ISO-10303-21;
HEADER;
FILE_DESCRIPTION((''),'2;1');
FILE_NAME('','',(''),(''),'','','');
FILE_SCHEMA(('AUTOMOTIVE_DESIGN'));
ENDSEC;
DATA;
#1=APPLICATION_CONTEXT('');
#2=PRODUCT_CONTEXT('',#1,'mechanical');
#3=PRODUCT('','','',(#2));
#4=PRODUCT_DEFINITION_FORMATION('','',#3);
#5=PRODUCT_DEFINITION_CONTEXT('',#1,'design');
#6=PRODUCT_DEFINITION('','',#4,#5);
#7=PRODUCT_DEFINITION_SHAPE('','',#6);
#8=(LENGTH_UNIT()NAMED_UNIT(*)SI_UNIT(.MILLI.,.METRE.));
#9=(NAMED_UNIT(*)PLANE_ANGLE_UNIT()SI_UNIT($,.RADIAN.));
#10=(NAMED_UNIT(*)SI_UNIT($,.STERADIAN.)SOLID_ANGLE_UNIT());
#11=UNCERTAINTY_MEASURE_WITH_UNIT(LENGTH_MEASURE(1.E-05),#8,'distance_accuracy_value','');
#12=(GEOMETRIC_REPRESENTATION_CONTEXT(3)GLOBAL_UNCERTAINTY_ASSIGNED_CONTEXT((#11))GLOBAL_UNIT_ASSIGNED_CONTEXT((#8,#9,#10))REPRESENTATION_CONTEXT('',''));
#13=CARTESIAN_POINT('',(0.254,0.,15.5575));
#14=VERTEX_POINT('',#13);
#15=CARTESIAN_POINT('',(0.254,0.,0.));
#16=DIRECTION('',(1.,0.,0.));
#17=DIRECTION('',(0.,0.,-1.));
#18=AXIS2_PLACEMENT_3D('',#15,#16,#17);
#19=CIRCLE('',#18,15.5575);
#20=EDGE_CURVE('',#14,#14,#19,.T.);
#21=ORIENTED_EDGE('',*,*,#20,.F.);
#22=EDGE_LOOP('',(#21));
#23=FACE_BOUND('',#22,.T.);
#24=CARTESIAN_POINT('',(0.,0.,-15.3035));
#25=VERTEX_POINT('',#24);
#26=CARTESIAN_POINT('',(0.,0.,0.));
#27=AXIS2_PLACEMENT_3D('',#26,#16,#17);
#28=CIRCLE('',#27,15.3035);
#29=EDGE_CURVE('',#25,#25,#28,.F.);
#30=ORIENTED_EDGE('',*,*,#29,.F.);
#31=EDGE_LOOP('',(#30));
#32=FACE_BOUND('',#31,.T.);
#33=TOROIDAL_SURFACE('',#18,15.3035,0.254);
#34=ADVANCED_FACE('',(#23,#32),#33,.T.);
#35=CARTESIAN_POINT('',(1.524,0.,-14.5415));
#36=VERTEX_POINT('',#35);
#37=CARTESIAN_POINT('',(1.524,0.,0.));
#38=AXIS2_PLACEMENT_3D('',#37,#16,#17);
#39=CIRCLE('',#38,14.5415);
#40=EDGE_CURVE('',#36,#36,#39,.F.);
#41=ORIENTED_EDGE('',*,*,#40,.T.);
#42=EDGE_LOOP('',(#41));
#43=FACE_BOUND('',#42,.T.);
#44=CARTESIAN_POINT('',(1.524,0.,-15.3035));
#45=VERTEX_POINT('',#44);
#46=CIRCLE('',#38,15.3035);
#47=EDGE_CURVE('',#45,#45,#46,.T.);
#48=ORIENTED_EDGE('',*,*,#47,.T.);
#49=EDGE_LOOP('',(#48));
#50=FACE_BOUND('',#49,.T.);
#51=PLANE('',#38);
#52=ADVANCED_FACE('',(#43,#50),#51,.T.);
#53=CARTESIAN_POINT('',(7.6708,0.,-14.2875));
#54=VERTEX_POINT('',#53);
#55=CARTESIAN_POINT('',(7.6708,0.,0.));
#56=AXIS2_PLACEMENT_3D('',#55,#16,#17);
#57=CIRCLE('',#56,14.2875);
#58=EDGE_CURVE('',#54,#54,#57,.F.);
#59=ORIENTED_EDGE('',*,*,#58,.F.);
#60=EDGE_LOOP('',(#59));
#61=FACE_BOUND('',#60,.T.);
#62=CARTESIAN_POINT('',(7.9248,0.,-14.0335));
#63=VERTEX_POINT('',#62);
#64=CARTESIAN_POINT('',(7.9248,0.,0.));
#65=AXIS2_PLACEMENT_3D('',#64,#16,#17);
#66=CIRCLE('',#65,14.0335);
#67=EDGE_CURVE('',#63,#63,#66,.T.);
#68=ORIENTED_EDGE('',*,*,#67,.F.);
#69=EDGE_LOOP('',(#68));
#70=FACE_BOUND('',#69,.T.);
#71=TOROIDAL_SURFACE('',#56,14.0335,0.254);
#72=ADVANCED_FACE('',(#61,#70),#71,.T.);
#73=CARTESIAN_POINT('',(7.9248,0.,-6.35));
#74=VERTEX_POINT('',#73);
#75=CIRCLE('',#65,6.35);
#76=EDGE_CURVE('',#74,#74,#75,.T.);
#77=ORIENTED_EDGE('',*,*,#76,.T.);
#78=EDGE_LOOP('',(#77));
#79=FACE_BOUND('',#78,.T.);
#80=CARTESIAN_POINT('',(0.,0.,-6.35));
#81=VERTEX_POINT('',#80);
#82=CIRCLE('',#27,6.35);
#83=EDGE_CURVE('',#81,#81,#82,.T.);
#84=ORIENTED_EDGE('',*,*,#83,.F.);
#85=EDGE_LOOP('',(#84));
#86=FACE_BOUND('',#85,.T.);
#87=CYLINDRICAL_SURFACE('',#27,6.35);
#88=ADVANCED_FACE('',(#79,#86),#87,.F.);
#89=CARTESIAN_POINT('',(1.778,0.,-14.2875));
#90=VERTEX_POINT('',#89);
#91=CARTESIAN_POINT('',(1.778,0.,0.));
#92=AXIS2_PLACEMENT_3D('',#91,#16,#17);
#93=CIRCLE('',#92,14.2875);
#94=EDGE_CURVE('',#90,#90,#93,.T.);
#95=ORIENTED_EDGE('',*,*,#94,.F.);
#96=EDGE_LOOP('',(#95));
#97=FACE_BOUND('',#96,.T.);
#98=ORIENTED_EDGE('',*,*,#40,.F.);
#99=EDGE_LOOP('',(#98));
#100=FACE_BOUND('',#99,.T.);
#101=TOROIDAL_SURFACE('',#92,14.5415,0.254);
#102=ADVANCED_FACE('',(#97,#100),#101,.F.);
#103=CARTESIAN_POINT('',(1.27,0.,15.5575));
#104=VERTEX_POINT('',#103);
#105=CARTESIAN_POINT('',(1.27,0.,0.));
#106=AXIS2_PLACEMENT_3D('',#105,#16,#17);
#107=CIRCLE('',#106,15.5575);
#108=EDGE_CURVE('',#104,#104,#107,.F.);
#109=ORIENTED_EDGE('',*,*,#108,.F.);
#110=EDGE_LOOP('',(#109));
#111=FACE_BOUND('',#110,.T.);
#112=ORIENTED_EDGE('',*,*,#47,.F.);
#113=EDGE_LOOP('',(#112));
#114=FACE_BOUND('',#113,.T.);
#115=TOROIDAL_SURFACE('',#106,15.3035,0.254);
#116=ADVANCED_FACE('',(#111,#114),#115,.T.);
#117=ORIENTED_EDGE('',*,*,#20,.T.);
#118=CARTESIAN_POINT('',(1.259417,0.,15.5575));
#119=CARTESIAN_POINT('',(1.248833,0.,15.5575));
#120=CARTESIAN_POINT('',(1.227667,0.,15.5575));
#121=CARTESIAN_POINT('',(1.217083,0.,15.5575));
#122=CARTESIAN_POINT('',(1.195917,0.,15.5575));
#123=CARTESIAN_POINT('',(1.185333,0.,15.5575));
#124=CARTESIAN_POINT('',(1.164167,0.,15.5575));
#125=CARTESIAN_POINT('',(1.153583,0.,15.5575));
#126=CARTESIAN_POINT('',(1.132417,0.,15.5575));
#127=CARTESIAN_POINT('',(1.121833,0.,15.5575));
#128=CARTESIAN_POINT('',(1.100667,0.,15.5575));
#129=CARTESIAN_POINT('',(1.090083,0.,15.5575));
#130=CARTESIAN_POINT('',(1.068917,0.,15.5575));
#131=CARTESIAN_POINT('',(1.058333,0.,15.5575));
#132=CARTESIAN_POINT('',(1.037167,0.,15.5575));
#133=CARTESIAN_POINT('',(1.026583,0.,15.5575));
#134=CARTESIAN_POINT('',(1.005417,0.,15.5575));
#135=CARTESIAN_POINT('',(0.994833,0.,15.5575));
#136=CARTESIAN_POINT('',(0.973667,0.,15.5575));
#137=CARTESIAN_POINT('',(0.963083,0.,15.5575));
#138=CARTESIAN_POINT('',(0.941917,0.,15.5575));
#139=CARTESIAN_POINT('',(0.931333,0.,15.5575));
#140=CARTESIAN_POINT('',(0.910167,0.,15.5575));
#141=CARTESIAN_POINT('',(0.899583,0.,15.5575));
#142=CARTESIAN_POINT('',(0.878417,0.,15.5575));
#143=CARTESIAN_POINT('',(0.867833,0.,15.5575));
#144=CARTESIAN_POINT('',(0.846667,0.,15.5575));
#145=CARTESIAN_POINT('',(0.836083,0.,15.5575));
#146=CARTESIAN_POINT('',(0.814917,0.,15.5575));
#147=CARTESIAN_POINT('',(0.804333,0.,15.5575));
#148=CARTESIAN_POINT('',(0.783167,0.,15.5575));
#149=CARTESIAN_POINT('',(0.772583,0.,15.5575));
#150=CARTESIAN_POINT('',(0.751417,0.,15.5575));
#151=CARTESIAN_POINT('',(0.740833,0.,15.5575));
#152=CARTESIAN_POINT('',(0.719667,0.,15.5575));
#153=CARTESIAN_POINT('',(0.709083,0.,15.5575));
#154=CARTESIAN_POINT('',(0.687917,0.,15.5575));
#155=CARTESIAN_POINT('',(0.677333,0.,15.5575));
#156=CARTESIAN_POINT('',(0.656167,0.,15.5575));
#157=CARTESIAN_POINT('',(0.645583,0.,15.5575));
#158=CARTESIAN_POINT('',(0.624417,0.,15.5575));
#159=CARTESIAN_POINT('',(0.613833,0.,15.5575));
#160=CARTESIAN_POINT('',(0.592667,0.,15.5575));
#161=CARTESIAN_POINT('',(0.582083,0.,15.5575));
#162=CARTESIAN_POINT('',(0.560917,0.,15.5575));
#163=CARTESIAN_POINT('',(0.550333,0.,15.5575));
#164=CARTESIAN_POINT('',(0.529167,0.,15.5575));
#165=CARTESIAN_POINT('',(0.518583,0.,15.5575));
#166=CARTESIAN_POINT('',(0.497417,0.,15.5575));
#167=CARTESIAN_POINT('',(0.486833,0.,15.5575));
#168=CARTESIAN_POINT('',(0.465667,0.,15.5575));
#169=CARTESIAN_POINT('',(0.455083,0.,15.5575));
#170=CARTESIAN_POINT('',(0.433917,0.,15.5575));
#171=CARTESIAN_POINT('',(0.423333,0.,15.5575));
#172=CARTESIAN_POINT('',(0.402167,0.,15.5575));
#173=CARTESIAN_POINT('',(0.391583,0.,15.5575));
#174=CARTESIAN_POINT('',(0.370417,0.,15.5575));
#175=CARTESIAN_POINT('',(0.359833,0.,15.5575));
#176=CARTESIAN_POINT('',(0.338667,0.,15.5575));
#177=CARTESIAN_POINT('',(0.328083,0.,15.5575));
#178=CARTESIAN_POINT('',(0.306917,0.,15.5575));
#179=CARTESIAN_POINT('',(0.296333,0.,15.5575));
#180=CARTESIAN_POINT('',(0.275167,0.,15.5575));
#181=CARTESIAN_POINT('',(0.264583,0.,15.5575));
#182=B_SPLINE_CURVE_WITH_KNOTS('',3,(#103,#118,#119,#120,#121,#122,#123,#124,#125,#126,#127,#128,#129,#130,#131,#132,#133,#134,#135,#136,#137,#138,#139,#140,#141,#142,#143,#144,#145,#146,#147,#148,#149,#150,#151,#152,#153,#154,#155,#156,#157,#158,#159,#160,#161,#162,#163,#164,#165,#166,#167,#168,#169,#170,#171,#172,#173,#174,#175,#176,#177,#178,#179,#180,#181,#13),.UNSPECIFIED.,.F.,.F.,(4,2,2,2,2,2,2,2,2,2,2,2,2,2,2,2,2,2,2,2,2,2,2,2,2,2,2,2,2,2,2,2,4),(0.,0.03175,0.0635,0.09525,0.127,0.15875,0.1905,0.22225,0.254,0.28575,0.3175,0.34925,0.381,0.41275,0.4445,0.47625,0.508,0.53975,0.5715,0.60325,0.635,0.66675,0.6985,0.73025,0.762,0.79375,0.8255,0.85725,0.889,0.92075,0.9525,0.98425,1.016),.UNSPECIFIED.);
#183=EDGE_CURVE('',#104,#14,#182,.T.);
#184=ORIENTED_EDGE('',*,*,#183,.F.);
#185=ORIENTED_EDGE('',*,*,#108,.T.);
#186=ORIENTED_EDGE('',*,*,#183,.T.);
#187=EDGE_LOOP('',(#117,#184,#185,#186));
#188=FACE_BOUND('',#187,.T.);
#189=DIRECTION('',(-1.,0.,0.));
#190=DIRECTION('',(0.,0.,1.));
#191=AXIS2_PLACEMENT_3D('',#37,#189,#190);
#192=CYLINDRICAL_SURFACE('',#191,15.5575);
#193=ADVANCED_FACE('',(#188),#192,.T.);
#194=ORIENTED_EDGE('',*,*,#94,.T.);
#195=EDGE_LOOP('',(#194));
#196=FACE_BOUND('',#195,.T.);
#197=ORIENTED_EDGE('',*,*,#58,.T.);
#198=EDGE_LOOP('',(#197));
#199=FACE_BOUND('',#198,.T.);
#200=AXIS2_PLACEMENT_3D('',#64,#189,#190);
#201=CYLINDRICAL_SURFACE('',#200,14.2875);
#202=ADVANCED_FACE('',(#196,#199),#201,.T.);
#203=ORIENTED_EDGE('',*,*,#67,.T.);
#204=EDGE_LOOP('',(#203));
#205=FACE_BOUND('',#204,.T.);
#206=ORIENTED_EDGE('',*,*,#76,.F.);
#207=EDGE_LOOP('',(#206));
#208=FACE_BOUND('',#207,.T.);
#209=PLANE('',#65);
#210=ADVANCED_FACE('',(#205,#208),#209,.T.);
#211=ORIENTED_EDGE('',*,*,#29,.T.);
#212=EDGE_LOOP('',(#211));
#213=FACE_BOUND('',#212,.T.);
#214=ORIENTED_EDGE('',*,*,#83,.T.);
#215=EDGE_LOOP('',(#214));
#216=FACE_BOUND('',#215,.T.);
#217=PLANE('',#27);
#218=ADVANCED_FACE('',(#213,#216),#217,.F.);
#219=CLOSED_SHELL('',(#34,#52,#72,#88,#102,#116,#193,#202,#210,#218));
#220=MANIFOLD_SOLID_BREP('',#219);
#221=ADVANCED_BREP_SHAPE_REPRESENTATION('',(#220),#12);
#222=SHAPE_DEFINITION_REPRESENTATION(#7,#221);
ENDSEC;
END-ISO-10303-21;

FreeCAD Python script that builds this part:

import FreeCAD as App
import Part
import Sketcher

V = App.Vector
Q = App.Units.Quantity


def edges_at(feature, points):
    """Names of the edges that pass closest to the given points."""
    edges = feature.Shape.Edges
    near = lambda p: min(range(len(edges)), key=lambda i: edges[i].distToShape(Part.Vertex(*p))[0])
    return sorted({f"Edge{near(p) + 1}" for p in points})

doc = App.newDocument("Part")
body = doc.addObject("PartDesign::Body", "Body")

sketch1 = body.newObject("Sketcher::SketchObject", "Sketch")
sketch1.AttachmentSupport = (doc.getObject("YZ_Plane"), [""])
sketch1.MapMode = "FlatFace"
sketch1.addGeometry(Part.Circle(V(0, 0, 0), V(0, 0, 1), 15.5575), False)
sketch1.addConstraint([
    Sketcher.Constraint("Coincident", 0, 3, -1, 1),
    Sketcher.Constraint("Diameter", 0, Q("1.225 in")),
])
pad1 = body.newObject("PartDesign::Pad", "Pad")
pad1.Profile = sketch1
pad1.Length = Q("0.06 in")

sketch2 = body.newObject("Sketcher::SketchObject", "Sketch001")
sketch2.AttachmentSupport = (doc.getObject("YZ_Plane"), [""])
sketch2.MapMode = "FlatFace"
sketch2.AttachmentOffset = App.Placement(V(0, 0, 0.06 * 25.4), App.Rotation())
sketch2.addGeometry(Part.Circle(V(0, 0, 0), V(0, 0, 1), 14.2875), False)
sketch2.addConstraint([
    Sketcher.Constraint("Coincident", 0, 3, -1, 1),
    Sketcher.Constraint("Diameter", 0, Q("1.125 in")),
])
pad2 = body.newObject("PartDesign::Pad", "Pad001")
pad2.Profile = sketch2
pad2.Length = Q("0.252 in")

sketch3 = body.newObject("Sketcher::SketchObject", "Sketch002")
sketch3.AttachmentSupport = (doc.getObject("YZ_Plane"), [""])
sketch3.MapMode = "FlatFace"
sketch3.AttachmentOffset = App.Placement(V(0, 0, 0.312 * 25.4), App.Rotation())
sketch3.addGeometry(Part.Circle(V(0, 0, 0), V(0, 0, 1), 6.35), False)
sketch3.addConstraint([
    Sketcher.Constraint("Coincident", 0, 3, -1, 1),
    Sketcher.Constraint("Diameter", 0, Q("0.5 in")),
])
pocket1 = body.newObject("PartDesign::Pocket", "Pocket")
pocket1.Profile = sketch3
pocket1.Type = "ThroughAll"
doc.recompute()

fillet = body.newObject("PartDesign::Fillet", "Fillet")
fillet.Base = (pocket1, edges_at(pocket1, [
    (0, 0, -15.557),
    (1.524, 0, -15.557),
    (1.524, 0, 14.287),
    (7.925, 0, 14.287),
]))
fillet.Radius = Q("0.01 in")

doc.recompute()
